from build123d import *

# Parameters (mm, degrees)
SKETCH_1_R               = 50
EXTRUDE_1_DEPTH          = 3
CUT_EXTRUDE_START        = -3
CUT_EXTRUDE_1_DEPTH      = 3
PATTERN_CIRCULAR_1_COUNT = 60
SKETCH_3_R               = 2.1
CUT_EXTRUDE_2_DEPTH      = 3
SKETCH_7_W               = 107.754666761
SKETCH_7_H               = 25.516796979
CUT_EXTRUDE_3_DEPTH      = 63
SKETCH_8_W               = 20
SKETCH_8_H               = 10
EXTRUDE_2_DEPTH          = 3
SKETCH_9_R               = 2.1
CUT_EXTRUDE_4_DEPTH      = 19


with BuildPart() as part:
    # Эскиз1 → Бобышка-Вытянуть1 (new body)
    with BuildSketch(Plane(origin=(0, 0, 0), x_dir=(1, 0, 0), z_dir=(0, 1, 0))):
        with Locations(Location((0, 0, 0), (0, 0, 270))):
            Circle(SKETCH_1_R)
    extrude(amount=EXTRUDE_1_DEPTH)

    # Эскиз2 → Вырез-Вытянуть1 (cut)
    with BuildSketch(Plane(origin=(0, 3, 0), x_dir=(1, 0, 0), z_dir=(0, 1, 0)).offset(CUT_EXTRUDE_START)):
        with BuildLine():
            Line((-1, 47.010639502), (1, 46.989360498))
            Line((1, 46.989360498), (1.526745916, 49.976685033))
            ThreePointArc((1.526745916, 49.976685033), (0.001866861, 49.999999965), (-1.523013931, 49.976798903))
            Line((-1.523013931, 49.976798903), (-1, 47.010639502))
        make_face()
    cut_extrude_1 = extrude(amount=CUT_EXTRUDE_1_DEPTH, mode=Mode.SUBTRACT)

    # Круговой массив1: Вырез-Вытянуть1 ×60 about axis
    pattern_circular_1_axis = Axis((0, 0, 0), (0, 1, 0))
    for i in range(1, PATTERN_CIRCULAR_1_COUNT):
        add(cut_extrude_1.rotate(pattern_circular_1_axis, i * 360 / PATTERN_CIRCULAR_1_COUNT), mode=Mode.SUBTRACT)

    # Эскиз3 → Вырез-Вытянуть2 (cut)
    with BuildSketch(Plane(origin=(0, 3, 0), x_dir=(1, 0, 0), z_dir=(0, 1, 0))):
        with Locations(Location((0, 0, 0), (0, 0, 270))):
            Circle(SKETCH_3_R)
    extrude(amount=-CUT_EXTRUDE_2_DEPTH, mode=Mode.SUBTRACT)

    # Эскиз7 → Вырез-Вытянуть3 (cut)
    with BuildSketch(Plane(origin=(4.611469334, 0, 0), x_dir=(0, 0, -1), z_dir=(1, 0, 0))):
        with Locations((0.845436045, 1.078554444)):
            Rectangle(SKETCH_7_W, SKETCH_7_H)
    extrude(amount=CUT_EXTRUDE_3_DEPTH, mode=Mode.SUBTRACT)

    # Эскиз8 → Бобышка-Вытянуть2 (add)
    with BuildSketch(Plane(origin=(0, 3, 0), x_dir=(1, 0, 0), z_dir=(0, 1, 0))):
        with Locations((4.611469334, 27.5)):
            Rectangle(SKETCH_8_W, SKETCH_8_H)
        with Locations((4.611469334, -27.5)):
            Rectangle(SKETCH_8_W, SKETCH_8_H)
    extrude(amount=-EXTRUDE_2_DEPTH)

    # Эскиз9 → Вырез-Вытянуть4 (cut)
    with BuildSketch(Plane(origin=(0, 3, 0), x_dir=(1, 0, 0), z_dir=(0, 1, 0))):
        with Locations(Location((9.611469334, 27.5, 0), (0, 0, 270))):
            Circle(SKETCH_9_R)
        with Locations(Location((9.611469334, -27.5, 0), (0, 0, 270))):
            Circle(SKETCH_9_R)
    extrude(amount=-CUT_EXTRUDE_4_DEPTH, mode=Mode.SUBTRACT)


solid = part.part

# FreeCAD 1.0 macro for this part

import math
import FreeCAD as App
import Part
import Sketcher
Q = App.Units.Quantity

doc = App.newDocument("Part")
body = doc.addObject("PartDesign::Body", "Body")

sketch1 = doc.addObject("Sketcher::SketchObject", "Sketch")
body.addObject(sketch1)
sketch1.AttachmentSupport = (doc.XZ_Plane, [""])
sketch1.MapMode = "FlatFace"
sketch1.addGeometry(Part.Circle(App.Vector(0, 0, 0), App.Vector(0, 0, 1), 50), False)
sketch1.addConstraint(Sketcher.Constraint("Coincident", 0, 3, -1, 1))
sketch1.addConstraint(Sketcher.Constraint("Diameter", 0, 100.0))
pad1 = doc.addObject("PartDesign::Pad", "Pad")
body.addObject(pad1)
pad1.Profile = sketch1
pad1.Length = 3
pad1.Reversed = True

sketch2 = doc.addObject("Sketcher::SketchObject", "Sketch001")
body.addObject(sketch2)
sketch2.AttachmentSupport = (doc.XZ_Plane, [""])
sketch2.MapMode = "FlatFace"
sketch2.addGeometry(Part.LineSegment(App.Vector(-1, -47.01064, 0), App.Vector(1, -46.98936, 0)), False)
sketch2.addGeometry(Part.LineSegment(App.Vector(1, -46.98936, 0), App.Vector(1.526746, -49.976685, 0)), False)
sketch2.addGeometry(Part.ArcOfCircle(Part.Circle(App.Vector(0, 0, 0), App.Vector(0, 0, 1), 50), math.radians(-91.745515), math.radians(-88.250206)), False)
sketch2.addGeometry(Part.LineSegment(App.Vector(-1.523014, -49.976799, 0), App.Vector(-1, -47.01064, 0)), False)
sketch2.addConstraint(Sketcher.Constraint("Coincident", 0, 2, 1, 1))
sketch2.addConstraint(Sketcher.Constraint("Coincident", 1, 2, 2, 2))
sketch2.addConstraint(Sketcher.Constraint("Coincident", 2, 1, 3, 1))
sketch2.addConstraint(Sketcher.Constraint("Coincident", 3, 2, 0, 1))
sketch2.addConstraint(Sketcher.Constraint("Coincident", 2, 3, -1, 1))
sketch2.addConstraint(Sketcher.Constraint("Radius", 2, 50.0))
sketch2.addConstraint(Sketcher.Constraint("Angle", 1, Q("-80 deg")))
sketch2.addConstraint(Sketcher.Constraint("Angle", 3, Q("80 deg")))
sketch2.addConstraint(Sketcher.Constraint("DistanceX", -1, 1, 0, 2, 1.0))
sketch2.addConstraint(Sketcher.Constraint("DistanceX", 3, 2, -1, 1, 1.0))
sketch2.addConstraint(Sketcher.Constraint("DistanceY", 2, 1, 2, 3, 49.976799))
sketch2.addConstraint(Sketcher.Constraint("Distance", 1, 3.033409))
pocket1 = doc.addObject("PartDesign::Pocket", "Pocket")
body.addObject(pocket1)
pocket1.Profile = sketch2
pocket1.Length = 3
doc.recompute()

polarpattern = doc.addObject("PartDesign::PolarPattern", "PolarPattern")
body.addObject(polarpattern)
polarpattern.Originals = [pocket1]
polarpattern.Axis = (doc.Y_Axis, [""])
polarpattern.Angle = 360
polarpattern.Occurrences = 60
body.Tip = polarpattern

sketch3 = doc.addObject("Sketcher::SketchObject", "Sketch002")
body.addObject(sketch3)
sketch3.AttachmentSupport = (doc.XZ_Plane, [""])
sketch3.MapMode = "FlatFace"
sketch3.AttachmentOffset = App.Placement(App.Vector(0, 0, -3), App.Rotation())
sketch3.addGeometry(Part.Circle(App.Vector(0, 0, 0), App.Vector(0, 0, 1), 2.1), False)
sketch3.addConstraint(Sketcher.Constraint("Coincident", 0, 3, -1, 1))
sketch3.addConstraint(Sketcher.Constraint("Diameter", 0, 4.2))
pocket2 = doc.addObject("PartDesign::Pocket", "Pocket001")
body.addObject(pocket2)
pocket2.Profile = sketch3
pocket2.Length = 3
pocket2.Reversed = True

sketch4 = doc.addObject("Sketcher::SketchObject", "Sketch003")
body.addObject(sketch4)
sketch4.AttachmentSupport = (doc.YZ_Plane, [""])
sketch4.MapMode = "FlatFace"
sketch4.AttachmentOffset = App.Placement(App.Vector(0, 0, 4.611469), App.Rotation())
sketch4.addGeometry(Part.LineSegment(App.Vector(13.836953, 53.031897, 0), App.Vector(-11.679844, 53.031897, 0)), False)
sketch4.addGeometry(Part.LineSegment(App.Vector(-11.679844, 53.031897, 0), App.Vector(-11.679844, -54.722769, 0)), False)
sketch4.addGeometry(Part.LineSegment(App.Vector(-11.679844, -54.722769, 0), App.Vector(13.836953, -54.722769, 0)), False)
sketch4.addGeometry(Part.LineSegment(App.Vector(13.836953, -54.722769, 0), App.Vector(13.836953, 53.031897, 0)), False)
sketch4.addConstraint(Sketcher.Constraint("Coincident", 0, 2, 1, 1))
sketch4.addConstraint(Sketcher.Constraint("Coincident", 1, 2, 2, 1))
sketch4.addConstraint(Sketcher.Constraint("Coincident", 2, 2, 3, 1))
sketch4.addConstraint(Sketcher.Constraint("Coincident", 3, 2, 0, 1))
sketch4.addConstraint(Sketcher.Constraint("Horizontal", 0))
sketch4.addConstraint(Sketcher.Constraint("Vertical", 1))
sketch4.addConstraint(Sketcher.Constraint("Horizontal", 2))
sketch4.addConstraint(Sketcher.Constraint("Vertical", 3))
sketch4.addConstraint(Sketcher.Constraint("DistanceX", 0, 2, 0, 1, 25.516797))
sketch4.addConstraint(Sketcher.Constraint("DistanceY", 1, 2, 1, 1, 107.754667))
sketch4.addConstraint(Sketcher.Constraint("DistanceY", 1, 2, -1, 1, 54.722769))
sketch4.addConstraint(Sketcher.Constraint("DistanceX", 0, 2, -1, 1, 11.679844))
pocket3 = doc.addObject("PartDesign::Pocket", "Pocket002")
body.addObject(pocket3)
pocket3.Profile = sketch4
pocket3.Length = 63
pocket3.Reversed = True

sketch5 = doc.addObject("Sketcher::SketchObject", "Sketch004")
body.addObject(sketch5)
sketch5.AttachmentSupport = (doc.XZ_Plane, [""])
sketch5.MapMode = "FlatFace"
sketch5.AttachmentOffset = App.Placement(App.Vector(0, 0, -3), App.Rotation())
sketch5.addGeometry(Part.LineSegment(App.Vector(-5.388531, -32.5, 0), App.Vector(-5.388531, -22.5, 0)), False)
sketch5.addGeometry(Part.LineSegment(App.Vector(-5.388531, -22.5, 0), App.Vector(14.611469, -22.5, 0)), False)
sketch5.addGeometry(Part.LineSegment(App.Vector(14.611469, -22.5, 0), App.Vector(14.611469, -32.5, 0)), False)
sketch5.addGeometry(Part.LineSegment(App.Vector(14.611469, -32.5, 0), App.Vector(-5.388531, -32.5, 0)), False)
sketch5.addGeometry(Part.LineSegment(App.Vector(-5.388531, 22.5, 0), App.Vector(-5.388531, 32.5, 0)), False)
sketch5.addGeometry(Part.LineSegment(App.Vector(-5.388531, 32.5, 0), App.Vector(14.611469, 32.5, 0)), False)
sketch5.addGeometry(Part.LineSegment(App.Vector(14.611469, 32.5, 0), App.Vector(14.611469, 22.5, 0)), False)
sketch5.addGeometry(Part.LineSegment(App.Vector(14.611469, 22.5, 0), App.Vector(-5.388531, 22.5, 0)), False)
sketch5.addConstraint(Sketcher.Constraint("Coincident", 0, 2, 1, 1))
sketch5.addConstraint(Sketcher.Constraint("Coincident", 1, 2, 2, 1))
sketch5.addConstraint(Sketcher.Constraint("Coincident", 2, 2, 3, 1))
sketch5.addConstraint(Sketcher.Constraint("Coincident", 3, 2, 0, 1))
sketch5.addConstraint(Sketcher.Constraint("Coincident", 4, 2, 5, 1))
sketch5.addConstraint(Sketcher.Constraint("Coincident", 5, 2, 6, 1))
sketch5.addConstraint(Sketcher.Constraint("Coincident", 6, 2, 7, 1))
sketch5.addConstraint(Sketcher.Constraint("Coincident", 7, 2, 4, 1))
sketch5.addConstraint(Sketcher.Constraint("Vertical", 0))
sketch5.addConstraint(Sketcher.Constraint("Horizontal", 1))
sketch5.addConstraint(Sketcher.Constraint("Vertical", 2))
sketch5.addConstraint(Sketcher.Constraint("Horizontal", 3))
sketch5.addConstraint(Sketcher.Constraint("Vertical", 4))
sketch5.addConstraint(Sketcher.Constraint("Horizontal", 5))
sketch5.addConstraint(Sketcher.Constraint("Vertical", 6))
sketch5.addConstraint(Sketcher.Constraint("Horizontal", 7))
sketch5.addConstraint(Sketcher.Constraint("Symmetric", 3, 2, 4, 2, -1))
sketch5.addConstraint(Sketcher.Constraint("Symmetric", 1, 2, 6, 2, -1))
sketch5.addConstraint(Sketcher.Constraint("DistanceX", 1, 1, 1, 2, 20.0))
sketch5.addConstraint(Sketcher.Constraint("DistanceY", 0, 1, 0, 2, 10.0))
sketch5.addConstraint(Sketcher.Constraint("DistanceY", 0, 2, 4, 2, 55.0))
sketch5.addConstraint(Sketcher.Constraint("DistanceX", 0, 2, -1, 1, 5.388531))
pad2 = doc.addObject("PartDesign::Pad", "Pad001")
body.addObject(pad2)
pad2.Profile = sketch5
pad2.Length = 3

sketch6 = doc.addObject("Sketcher::SketchObject", "Sketch005")
body.addObject(sketch6)
sketch6.AttachmentSupport = (doc.XZ_Plane, [""])
sketch6.MapMode = "FlatFace"
sketch6.AttachmentOffset = App.Placement(App.Vector(0, 0, -3), App.Rotation())
sketch6.addGeometry(Part.Circle(App.Vector(9.611469, -27.5, 0), App.Vector(0, 0, 1), 2.1), False)
sketch6.addGeometry(Part.Circle(App.Vector(9.611469, 27.5, 0), App.Vector(0, 0, 1), 2.1), False)
sketch6.addConstraint(Sketcher.Constraint("Equal", 0, 1))
sketch6.addConstraint(Sketcher.Constraint("Symmetric", 0, 3, 1, 3, -1))
sketch6.addConstraint(Sketcher.Constraint("Diameter", 0, 4.2))
sketch6.addConstraint(Sketcher.Constraint("DistanceY", 0, 3, 1, 3, 55.0))
sketch6.addConstraint(Sketcher.Constraint("DistanceX", -1, 1, 0, 3, 9.611469))
pocket4 = doc.addObject("PartDesign::Pocket", "Pocket003")
body.addObject(pocket4)
pocket4.Profile = sketch6
pocket4.Length = 19
pocket4.Reversed = True

doc.recompute()
